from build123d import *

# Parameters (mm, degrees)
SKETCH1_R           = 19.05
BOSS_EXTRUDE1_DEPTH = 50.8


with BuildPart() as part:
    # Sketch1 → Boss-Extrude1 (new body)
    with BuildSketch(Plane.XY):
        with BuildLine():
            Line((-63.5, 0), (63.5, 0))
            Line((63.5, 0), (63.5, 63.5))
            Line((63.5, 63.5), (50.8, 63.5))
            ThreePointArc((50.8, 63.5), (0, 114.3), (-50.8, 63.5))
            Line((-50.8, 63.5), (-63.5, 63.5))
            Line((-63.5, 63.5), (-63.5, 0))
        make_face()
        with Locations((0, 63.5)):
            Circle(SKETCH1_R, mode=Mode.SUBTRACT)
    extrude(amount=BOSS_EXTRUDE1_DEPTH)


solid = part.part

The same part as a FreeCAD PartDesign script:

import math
import FreeCAD as App
import Part
import Sketcher

V = App.Vector
Q = App.Units.Quantity

doc = App.newDocument("Part")
params = doc.addObject("Spreadsheet::Sheet", "Params")
for row, (alias, value) in enumerate([
    ("sketch1_radius", "2 in"),
    ("sketch1_diameter", "1.5 in"),
    ("sketch1_width", "5 in"),
    ("sketch1_height", "2.5 in"),
    ("pad1_length", "2 in"),
], start=1):
    params.set(f"A{row}", alias)
    params.set(f"B{row}", "=" + value)
    params.setAlias(f"B{row}", alias)

body = doc.addObject("PartDesign::Body", "Body")

# Sketch on XY plane
sketch1 = body.newObject("Sketcher::SketchObject", "Sketch")
sketch1.AttachmentSupport = (doc.getObject("XY_Plane"), [""])
sketch1.MapMode = "FlatFace"
sketch1.addGeometry(Part.LineSegment(V(-63.5, 0, 0), V(63.5, 0, 0)), False)
sketch1.addGeometry(Part.LineSegment(V(63.5, 0, 0), V(63.5, 63.5, 0)), False)
sketch1.addGeometry(Part.LineSegment(V(63.5, 63.5, 0), V(50.8, 63.5, 0)), False)
sketch1.addGeometry(Part.ArcOfCircle(Part.Circle(V(0, 63.5, 0), V(0, 0, 1), 50.8), math.radians(0), math.radians(180)), False)
sketch1.addGeometry(Part.LineSegment(V(-50.8, 63.5, 0), V(-63.5, 63.5, 0)), False)
sketch1.addGeometry(Part.LineSegment(V(-63.5, 63.5, 0), V(-63.5, 0, 0)), False)
sketch1.addGeometry(Part.Circle(V(0, 63.5, 0), V(0, 0, 1), 19.05), False)
sketch1.addConstraint(Sketcher.Constraint("Coincident", 0, 2, 1, 1))
sketch1.addConstraint(Sketcher.Constraint("Coincident", 1, 2, 2, 1))
sketch1.addConstraint(Sketcher.Constraint("Coincident", 2, 2, 3, 1))
sketch1.addConstraint(Sketcher.Constraint("Coincident", 3, 2, 4, 1))
sketch1.addConstraint(Sketcher.Constraint("Coincident", 4, 2, 5, 1))
sketch1.addConstraint(Sketcher.Constraint("Coincident", 5, 2, 0, 1))
sketch1.addConstraint(Sketcher.Constraint("Horizontal", 0))
sketch1.addConstraint(Sketcher.Constraint("Vertical", 1))
sketch1.addConstraint(Sketcher.Constraint("Horizontal", 2))
sketch1.addConstraint(Sketcher.Constraint("Horizontal", 4))
sketch1.addConstraint(Sketcher.Constraint("Vertical", 5))
sketch1.addConstraint(Sketcher.Constraint("Coincident", 6, 3, 3, 3))
sketch1.addConstraint(Sketcher.Constraint("Symmetric", 0, 2, 5, 2, -1, 1))
sketch1.addConstraint(Sketcher.Constraint("Symmetric", 2, 2, 3, 2, -2))
sketch1.addConstraint(Sketcher.Constraint("Horizontal", 6, 3, 1, 2))
sketch1.addConstraint(Sketcher.Constraint("Radius", 3, Q("2 in")))
sketch1.addConstraint(Sketcher.Constraint("Diameter", 6, Q("1.5 in")))
sketch1.addConstraint(Sketcher.Constraint("DistanceX", 0, 1, 0, 2, Q("5 in")))
sketch1.addConstraint(Sketcher.Constraint("DistanceY", 1, 1, 1, 2, Q("2.5 in")))
sketch1.setExpression("Constraints[15]", "Params.sketch1_radius")
sketch1.setExpression("Constraints[16]", "Params.sketch1_diameter")
sketch1.setExpression("Constraints[17]", "Params.sketch1_width")
sketch1.setExpression("Constraints[18]", "Params.sketch1_height")
pad1 = body.newObject("PartDesign::Pad", "Pad")
pad1.Profile = sketch1
pad1.setExpression("Length", "Params.pad1_length")

doc.recompute()
